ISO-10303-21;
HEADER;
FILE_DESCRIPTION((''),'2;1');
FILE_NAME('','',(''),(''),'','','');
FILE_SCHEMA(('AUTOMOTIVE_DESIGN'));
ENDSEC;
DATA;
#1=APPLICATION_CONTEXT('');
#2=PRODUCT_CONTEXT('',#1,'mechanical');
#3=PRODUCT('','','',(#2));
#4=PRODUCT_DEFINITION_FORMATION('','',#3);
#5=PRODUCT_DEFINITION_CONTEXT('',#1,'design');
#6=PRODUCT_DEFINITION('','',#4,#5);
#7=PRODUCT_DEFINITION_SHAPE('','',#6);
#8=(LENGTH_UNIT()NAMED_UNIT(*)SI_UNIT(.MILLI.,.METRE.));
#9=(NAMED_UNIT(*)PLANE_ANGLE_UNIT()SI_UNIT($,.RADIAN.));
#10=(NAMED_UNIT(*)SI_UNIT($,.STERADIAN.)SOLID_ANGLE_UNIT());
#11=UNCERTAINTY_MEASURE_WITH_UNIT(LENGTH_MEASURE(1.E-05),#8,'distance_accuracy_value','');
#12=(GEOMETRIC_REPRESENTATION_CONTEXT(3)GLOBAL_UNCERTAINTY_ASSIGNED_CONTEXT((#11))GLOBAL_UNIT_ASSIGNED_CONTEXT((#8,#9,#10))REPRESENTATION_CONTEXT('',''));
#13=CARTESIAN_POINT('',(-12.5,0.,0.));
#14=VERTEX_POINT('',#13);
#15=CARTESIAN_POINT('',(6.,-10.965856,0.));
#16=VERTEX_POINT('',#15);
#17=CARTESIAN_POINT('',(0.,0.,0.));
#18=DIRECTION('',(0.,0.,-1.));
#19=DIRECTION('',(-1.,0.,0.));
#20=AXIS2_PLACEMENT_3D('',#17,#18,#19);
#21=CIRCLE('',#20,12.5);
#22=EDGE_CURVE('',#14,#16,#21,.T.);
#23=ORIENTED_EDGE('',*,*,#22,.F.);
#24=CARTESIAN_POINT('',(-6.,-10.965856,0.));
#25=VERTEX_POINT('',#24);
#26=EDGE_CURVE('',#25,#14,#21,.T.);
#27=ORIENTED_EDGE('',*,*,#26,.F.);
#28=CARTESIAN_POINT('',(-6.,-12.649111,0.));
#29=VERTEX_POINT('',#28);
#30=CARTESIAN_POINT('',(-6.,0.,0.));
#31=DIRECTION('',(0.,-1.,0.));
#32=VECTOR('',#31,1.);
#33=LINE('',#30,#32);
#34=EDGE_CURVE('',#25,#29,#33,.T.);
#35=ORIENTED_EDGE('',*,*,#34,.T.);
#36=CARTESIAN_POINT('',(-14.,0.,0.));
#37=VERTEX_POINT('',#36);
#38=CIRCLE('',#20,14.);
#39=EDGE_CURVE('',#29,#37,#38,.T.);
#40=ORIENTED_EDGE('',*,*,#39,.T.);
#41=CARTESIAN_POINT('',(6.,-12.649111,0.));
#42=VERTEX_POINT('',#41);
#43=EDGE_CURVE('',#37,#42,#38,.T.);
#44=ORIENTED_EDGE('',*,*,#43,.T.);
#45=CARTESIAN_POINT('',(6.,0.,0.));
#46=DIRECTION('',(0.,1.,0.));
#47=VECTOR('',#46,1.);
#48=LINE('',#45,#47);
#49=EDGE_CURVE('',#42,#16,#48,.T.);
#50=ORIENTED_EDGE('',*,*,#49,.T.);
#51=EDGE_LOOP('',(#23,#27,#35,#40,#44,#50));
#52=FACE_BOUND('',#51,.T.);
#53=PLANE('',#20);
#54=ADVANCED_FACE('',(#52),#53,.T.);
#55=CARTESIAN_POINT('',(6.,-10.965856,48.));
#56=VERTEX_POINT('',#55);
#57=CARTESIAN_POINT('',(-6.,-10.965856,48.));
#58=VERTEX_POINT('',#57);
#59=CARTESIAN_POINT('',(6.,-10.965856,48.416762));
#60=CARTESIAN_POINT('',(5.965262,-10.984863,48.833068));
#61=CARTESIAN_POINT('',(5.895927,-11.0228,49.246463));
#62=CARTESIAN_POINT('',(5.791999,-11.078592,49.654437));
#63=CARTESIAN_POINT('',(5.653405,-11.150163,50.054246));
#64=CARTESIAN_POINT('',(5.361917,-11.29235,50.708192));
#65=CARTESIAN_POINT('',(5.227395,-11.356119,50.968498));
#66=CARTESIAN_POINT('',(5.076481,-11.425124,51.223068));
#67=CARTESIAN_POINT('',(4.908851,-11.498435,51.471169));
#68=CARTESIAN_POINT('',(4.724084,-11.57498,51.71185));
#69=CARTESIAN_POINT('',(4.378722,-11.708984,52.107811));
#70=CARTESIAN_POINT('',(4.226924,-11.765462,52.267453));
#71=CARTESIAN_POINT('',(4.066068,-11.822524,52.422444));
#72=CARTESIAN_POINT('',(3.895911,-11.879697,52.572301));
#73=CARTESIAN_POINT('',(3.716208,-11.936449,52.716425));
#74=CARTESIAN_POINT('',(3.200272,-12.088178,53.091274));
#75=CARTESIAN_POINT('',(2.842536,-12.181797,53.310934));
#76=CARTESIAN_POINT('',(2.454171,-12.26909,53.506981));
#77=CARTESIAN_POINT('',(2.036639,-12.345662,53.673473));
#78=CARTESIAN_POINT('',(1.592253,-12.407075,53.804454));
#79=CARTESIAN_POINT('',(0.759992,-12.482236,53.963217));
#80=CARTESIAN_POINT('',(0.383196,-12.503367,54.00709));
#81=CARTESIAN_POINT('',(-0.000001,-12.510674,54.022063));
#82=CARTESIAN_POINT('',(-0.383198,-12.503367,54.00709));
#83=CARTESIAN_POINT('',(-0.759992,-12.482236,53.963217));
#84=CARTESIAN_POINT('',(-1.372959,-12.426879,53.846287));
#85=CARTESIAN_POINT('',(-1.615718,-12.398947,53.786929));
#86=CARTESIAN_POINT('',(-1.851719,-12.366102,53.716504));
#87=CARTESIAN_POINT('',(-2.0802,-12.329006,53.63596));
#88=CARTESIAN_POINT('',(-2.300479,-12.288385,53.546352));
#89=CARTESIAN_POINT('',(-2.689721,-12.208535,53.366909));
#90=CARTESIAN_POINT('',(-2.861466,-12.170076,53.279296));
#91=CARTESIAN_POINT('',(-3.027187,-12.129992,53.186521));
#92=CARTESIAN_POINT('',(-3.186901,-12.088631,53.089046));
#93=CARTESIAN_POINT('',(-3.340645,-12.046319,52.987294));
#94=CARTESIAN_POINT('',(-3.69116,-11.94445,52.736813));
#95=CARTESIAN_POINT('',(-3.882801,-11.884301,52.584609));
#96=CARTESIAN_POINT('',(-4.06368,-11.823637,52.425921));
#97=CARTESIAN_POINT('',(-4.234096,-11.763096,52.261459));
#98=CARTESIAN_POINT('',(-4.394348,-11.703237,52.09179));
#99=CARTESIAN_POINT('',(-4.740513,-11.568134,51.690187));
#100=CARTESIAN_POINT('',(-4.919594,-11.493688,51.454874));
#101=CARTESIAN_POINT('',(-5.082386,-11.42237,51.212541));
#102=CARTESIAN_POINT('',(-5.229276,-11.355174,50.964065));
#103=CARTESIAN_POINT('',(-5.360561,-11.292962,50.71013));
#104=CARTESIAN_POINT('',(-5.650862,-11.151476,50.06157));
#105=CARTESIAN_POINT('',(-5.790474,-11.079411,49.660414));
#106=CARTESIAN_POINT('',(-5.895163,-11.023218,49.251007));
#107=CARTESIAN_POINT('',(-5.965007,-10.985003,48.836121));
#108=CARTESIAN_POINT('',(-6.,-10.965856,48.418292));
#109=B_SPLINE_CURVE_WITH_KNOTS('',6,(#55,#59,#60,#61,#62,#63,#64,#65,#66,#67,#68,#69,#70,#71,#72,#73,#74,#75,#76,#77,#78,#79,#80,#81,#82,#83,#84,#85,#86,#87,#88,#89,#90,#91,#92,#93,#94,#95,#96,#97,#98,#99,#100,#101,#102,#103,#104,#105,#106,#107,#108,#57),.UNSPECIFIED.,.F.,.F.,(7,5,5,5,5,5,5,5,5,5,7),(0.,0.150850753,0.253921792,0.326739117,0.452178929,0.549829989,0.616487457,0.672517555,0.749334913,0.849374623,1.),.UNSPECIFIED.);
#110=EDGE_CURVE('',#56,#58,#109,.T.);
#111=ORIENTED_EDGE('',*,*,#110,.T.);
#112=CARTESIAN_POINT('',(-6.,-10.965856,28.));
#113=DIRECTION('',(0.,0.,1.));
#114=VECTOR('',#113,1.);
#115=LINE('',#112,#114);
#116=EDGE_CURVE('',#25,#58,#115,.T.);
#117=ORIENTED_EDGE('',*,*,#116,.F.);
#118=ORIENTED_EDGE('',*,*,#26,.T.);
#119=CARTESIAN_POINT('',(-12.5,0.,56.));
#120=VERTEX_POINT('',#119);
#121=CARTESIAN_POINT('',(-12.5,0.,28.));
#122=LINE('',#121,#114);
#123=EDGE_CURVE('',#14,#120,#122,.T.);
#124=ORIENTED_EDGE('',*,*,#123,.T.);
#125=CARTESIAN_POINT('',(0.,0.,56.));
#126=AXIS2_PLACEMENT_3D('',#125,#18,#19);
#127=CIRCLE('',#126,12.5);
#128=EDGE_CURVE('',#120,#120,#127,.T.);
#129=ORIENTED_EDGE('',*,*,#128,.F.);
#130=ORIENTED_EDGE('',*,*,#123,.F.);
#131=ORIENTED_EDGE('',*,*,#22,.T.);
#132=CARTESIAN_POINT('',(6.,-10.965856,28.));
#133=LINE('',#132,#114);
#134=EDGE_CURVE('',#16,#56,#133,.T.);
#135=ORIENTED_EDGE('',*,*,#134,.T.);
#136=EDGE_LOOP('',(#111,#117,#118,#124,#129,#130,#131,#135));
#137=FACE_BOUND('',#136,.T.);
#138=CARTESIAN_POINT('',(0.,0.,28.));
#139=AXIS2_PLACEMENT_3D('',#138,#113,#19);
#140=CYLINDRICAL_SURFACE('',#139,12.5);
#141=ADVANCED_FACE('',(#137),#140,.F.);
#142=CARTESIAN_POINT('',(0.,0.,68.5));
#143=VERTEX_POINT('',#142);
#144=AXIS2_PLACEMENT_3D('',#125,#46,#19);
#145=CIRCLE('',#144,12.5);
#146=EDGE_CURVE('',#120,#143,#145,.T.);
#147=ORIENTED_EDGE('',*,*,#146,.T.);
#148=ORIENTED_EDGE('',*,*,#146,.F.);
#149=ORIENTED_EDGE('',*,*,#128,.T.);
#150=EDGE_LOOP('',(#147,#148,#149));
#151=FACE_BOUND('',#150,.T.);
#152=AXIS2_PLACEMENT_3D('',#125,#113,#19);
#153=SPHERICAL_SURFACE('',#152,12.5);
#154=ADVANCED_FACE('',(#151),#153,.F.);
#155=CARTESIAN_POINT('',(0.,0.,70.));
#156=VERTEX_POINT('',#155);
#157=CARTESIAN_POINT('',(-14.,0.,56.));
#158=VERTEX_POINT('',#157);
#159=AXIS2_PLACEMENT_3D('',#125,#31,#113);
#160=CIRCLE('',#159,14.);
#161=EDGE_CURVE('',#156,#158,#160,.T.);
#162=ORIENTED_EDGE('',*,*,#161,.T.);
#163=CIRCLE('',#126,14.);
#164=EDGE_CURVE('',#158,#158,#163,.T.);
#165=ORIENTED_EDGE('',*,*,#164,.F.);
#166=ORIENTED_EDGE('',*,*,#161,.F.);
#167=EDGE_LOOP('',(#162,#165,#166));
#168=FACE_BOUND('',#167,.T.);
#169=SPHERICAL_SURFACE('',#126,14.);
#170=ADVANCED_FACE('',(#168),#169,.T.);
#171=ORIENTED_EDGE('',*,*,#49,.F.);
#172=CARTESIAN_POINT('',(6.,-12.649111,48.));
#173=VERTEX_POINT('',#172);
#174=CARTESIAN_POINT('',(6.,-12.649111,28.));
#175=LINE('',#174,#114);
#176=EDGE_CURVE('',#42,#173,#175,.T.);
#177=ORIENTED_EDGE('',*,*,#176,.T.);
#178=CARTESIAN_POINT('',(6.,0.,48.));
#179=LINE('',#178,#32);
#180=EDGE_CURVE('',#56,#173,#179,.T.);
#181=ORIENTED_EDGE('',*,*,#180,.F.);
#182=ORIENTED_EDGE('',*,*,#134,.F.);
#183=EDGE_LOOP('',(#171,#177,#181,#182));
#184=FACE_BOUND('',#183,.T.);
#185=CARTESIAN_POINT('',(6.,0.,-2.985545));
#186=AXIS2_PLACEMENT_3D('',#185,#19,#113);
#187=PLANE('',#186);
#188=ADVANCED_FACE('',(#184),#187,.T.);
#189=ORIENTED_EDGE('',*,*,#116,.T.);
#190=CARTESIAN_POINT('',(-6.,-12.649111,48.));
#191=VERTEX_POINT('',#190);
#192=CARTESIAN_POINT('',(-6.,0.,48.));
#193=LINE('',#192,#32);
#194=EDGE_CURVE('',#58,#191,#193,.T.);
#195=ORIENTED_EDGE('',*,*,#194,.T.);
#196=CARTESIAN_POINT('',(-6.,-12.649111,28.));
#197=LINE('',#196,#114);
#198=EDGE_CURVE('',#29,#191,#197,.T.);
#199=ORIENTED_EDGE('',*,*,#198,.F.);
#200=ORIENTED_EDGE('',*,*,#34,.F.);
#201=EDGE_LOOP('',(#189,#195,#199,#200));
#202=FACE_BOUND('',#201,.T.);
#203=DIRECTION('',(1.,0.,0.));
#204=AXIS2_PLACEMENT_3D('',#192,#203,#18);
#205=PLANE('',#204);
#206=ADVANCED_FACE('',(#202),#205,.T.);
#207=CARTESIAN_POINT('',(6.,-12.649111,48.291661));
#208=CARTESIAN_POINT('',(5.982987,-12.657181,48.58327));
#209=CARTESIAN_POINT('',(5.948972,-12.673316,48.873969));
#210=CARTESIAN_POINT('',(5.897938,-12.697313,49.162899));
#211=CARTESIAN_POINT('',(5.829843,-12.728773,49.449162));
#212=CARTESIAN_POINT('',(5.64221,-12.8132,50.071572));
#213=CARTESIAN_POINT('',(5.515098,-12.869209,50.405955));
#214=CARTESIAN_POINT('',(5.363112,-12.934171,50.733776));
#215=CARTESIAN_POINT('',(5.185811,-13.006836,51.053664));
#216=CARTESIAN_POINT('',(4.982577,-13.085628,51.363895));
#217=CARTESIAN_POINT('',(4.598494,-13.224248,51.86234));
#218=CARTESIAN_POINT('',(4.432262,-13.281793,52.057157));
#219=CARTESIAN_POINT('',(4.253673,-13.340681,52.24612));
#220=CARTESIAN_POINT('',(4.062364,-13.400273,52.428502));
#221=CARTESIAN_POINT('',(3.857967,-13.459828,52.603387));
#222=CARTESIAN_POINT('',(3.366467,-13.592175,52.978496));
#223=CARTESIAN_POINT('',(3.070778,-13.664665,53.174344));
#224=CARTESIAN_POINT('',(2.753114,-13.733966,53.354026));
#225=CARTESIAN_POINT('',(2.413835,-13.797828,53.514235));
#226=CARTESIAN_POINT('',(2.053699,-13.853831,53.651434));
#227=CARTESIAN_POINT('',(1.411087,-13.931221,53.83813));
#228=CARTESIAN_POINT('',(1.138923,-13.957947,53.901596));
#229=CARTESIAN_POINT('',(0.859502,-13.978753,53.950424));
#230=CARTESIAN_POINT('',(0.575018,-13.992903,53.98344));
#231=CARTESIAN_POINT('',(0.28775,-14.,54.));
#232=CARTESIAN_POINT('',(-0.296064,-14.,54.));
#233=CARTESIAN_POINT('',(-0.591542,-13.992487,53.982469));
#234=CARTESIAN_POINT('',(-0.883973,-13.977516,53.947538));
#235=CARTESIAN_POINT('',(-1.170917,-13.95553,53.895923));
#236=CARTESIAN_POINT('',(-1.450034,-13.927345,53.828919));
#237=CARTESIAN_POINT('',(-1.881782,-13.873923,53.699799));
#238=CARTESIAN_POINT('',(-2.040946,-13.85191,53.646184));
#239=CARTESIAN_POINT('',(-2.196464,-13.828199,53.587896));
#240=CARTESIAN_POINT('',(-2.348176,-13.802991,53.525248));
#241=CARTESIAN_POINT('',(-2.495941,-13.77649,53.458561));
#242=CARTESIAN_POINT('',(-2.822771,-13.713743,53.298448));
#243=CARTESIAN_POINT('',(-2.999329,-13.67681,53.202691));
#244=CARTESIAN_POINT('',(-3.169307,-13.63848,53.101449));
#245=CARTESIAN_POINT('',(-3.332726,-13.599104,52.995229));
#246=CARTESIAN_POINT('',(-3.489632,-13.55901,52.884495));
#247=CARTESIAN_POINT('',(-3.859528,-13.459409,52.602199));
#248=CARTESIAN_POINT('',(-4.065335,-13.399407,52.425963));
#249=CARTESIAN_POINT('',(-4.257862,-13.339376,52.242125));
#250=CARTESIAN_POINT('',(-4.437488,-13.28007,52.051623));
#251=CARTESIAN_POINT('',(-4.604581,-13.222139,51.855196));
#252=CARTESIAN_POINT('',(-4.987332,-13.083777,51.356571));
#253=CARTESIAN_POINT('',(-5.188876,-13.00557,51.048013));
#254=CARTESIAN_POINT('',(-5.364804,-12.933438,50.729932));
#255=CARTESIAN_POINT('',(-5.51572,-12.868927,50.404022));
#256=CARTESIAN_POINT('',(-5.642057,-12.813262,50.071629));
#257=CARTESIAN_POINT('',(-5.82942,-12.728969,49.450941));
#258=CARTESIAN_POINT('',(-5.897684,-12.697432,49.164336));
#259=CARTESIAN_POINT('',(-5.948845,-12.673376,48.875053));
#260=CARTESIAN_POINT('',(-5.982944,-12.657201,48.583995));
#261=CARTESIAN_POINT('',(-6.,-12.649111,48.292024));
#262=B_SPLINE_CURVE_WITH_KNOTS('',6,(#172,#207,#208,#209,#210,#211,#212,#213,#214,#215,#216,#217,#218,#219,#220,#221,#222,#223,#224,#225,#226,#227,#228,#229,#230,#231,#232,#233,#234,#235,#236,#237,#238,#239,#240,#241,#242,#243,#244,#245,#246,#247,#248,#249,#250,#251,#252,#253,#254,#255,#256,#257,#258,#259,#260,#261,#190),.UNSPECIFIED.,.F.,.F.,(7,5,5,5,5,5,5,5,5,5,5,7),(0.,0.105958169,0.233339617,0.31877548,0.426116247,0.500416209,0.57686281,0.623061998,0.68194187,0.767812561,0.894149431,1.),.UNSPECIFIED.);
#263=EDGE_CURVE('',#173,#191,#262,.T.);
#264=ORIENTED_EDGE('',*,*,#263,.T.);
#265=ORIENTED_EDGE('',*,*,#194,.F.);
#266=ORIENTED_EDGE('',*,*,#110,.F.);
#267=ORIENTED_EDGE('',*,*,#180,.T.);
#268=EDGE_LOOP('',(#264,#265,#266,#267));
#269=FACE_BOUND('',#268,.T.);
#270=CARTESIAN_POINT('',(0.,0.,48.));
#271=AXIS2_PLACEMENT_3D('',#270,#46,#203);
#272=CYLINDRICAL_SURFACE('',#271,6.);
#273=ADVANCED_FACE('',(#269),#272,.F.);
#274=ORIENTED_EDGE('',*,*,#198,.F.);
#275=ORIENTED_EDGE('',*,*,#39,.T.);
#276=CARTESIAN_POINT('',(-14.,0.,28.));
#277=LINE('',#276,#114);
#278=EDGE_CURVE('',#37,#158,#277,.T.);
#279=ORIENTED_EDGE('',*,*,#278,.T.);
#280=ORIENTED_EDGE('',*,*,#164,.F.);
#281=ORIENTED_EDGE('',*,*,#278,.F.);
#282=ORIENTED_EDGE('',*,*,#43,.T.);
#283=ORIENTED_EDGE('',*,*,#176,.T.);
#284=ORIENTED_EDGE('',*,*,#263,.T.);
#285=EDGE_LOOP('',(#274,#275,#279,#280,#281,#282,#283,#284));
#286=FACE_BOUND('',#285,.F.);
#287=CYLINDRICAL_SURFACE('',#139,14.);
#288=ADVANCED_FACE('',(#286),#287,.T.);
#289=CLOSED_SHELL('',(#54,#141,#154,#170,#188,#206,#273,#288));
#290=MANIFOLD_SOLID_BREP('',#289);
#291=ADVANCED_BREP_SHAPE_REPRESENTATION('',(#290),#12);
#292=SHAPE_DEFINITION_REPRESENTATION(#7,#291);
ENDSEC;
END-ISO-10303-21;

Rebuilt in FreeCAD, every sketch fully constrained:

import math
import FreeCAD as App
import Part
import Sketcher
from FreeCAD import Vector

doc = App.newDocument("Part")
body = doc.addObject("PartDesign::Body", "Body")

# Sketch on XZ plane
sketch1 = body.newObject("Sketcher::SketchObject", "Sketch")
sketch1.AttachmentSupport = (doc.getObject("XZ_Plane"), [""])
sketch1.MapMode = "FlatFace"
sketch1.addGeometry([
    Part.ArcOfCircle(Part.Circle(Vector(0, 56, 0), Vector(0, 0, 1), 12.5), math.radians(90), math.radians(180)),  # 0
    Part.LineSegment(Vector(0, 68.5, 0), Vector(0, 70, 0)),  # 1
    Part.ArcOfCircle(Part.Circle(Vector(0, 56, 0), Vector(0, 0, 1), 14), math.radians(90), math.radians(180)),  # 2
    Part.LineSegment(Vector(-14, 56, 0), Vector(-14, 0, 0)),  # 3
    Part.LineSegment(Vector(-14, 0, 0), Vector(-12.5, 0, 0)),  # 4
    Part.LineSegment(Vector(-12.5, 0, 0), Vector(-12.5, 56, 0)),  # 5
], False)
sketch1.addConstraint([
    Sketcher.Constraint("Coincident", 0, 1, 1, 1),
    Sketcher.Constraint("Coincident", 1, 2, 2, 1),
    Sketcher.Constraint("Tangent", 2, 2, 3, 1),
    Sketcher.Constraint("Coincident", 3, 2, 4, 1),
    Sketcher.Constraint("Coincident", 4, 2, 5, 1),
    Sketcher.Constraint("Tangent", 5, 2, 0, 2),
    Sketcher.Constraint("Vertical", 1),
    Sketcher.Constraint("Vertical", 3),
    Sketcher.Constraint("Horizontal", 4),
    Sketcher.Constraint("Vertical", 5),
    Sketcher.Constraint("Coincident", 2, 3, 0, 3),
    Sketcher.Constraint("PointOnObject", 0, 3, -2),
    Sketcher.Constraint("PointOnObject", 0, 1, -2),
    Sketcher.Constraint("PointOnObject", 3, 2, -1),
    Sketcher.Constraint("Radius", 2, 14.0),
    Sketcher.Constraint("Radius", 0, 12.5),
    Sketcher.Constraint("DistanceY", 3, 2, 3, 1, 56.0),
])
revolution = body.newObject("PartDesign::Revolution", "Revolution")
revolution.Profile = sketch1
revolution.ReferenceAxis = (sketch1, ["V_Axis"])
revolution.Angle = 360

# Sketch on XZ plane
sketch2 = body.newObject("Sketcher::SketchObject", "Sketch001")
sketch2.AttachmentSupport = (doc.getObject("XZ_Plane"), [""])
sketch2.MapMode = "FlatFace"
sketch2.addGeometry([
    Part.LineSegment(Vector(6, -3, 0), Vector(6, 48, 0)),
    Part.ArcOfCircle(Part.Circle(Vector(0, 48, 0), Vector(0, 0, 1), 6), math.radians(0), math.radians(180)),
    Part.LineSegment(Vector(-6, 48, 0), Vector(-6, -3, 0)),
    Part.LineSegment(Vector(-6, -3, 0), Vector(6, -3, 0)),
], False)
sketch2.addConstraint([
    Sketcher.Constraint("Tangent", 0, 2, 1, 1),
    Sketcher.Constraint("Tangent", 1, 2, 2, 1),
    Sketcher.Constraint("Coincident", 2, 2, 3, 1),
    Sketcher.Constraint("Coincident", 3, 2, 0, 1),
    Sketcher.Constraint("Vertical", 0),
    Sketcher.Constraint("Vertical", 2),
    Sketcher.Constraint("Horizontal", 3),
    Sketcher.Constraint("PointOnObject", 1, 3, -2),
    Sketcher.Constraint("Radius", 1, 6.0),
    Sketcher.Constraint("DistanceY", -1, 1, 1, 3, 48.0),
    Sketcher.Constraint("DistanceY", 0, 1, 0, 2, 50.985545),
])
pocket1 = body.newObject("PartDesign::Pocket", "Pocket")
pocket1.Profile = sketch2
pocket1.Length = 25
pocket1.Reversed = True

doc.recompute()
